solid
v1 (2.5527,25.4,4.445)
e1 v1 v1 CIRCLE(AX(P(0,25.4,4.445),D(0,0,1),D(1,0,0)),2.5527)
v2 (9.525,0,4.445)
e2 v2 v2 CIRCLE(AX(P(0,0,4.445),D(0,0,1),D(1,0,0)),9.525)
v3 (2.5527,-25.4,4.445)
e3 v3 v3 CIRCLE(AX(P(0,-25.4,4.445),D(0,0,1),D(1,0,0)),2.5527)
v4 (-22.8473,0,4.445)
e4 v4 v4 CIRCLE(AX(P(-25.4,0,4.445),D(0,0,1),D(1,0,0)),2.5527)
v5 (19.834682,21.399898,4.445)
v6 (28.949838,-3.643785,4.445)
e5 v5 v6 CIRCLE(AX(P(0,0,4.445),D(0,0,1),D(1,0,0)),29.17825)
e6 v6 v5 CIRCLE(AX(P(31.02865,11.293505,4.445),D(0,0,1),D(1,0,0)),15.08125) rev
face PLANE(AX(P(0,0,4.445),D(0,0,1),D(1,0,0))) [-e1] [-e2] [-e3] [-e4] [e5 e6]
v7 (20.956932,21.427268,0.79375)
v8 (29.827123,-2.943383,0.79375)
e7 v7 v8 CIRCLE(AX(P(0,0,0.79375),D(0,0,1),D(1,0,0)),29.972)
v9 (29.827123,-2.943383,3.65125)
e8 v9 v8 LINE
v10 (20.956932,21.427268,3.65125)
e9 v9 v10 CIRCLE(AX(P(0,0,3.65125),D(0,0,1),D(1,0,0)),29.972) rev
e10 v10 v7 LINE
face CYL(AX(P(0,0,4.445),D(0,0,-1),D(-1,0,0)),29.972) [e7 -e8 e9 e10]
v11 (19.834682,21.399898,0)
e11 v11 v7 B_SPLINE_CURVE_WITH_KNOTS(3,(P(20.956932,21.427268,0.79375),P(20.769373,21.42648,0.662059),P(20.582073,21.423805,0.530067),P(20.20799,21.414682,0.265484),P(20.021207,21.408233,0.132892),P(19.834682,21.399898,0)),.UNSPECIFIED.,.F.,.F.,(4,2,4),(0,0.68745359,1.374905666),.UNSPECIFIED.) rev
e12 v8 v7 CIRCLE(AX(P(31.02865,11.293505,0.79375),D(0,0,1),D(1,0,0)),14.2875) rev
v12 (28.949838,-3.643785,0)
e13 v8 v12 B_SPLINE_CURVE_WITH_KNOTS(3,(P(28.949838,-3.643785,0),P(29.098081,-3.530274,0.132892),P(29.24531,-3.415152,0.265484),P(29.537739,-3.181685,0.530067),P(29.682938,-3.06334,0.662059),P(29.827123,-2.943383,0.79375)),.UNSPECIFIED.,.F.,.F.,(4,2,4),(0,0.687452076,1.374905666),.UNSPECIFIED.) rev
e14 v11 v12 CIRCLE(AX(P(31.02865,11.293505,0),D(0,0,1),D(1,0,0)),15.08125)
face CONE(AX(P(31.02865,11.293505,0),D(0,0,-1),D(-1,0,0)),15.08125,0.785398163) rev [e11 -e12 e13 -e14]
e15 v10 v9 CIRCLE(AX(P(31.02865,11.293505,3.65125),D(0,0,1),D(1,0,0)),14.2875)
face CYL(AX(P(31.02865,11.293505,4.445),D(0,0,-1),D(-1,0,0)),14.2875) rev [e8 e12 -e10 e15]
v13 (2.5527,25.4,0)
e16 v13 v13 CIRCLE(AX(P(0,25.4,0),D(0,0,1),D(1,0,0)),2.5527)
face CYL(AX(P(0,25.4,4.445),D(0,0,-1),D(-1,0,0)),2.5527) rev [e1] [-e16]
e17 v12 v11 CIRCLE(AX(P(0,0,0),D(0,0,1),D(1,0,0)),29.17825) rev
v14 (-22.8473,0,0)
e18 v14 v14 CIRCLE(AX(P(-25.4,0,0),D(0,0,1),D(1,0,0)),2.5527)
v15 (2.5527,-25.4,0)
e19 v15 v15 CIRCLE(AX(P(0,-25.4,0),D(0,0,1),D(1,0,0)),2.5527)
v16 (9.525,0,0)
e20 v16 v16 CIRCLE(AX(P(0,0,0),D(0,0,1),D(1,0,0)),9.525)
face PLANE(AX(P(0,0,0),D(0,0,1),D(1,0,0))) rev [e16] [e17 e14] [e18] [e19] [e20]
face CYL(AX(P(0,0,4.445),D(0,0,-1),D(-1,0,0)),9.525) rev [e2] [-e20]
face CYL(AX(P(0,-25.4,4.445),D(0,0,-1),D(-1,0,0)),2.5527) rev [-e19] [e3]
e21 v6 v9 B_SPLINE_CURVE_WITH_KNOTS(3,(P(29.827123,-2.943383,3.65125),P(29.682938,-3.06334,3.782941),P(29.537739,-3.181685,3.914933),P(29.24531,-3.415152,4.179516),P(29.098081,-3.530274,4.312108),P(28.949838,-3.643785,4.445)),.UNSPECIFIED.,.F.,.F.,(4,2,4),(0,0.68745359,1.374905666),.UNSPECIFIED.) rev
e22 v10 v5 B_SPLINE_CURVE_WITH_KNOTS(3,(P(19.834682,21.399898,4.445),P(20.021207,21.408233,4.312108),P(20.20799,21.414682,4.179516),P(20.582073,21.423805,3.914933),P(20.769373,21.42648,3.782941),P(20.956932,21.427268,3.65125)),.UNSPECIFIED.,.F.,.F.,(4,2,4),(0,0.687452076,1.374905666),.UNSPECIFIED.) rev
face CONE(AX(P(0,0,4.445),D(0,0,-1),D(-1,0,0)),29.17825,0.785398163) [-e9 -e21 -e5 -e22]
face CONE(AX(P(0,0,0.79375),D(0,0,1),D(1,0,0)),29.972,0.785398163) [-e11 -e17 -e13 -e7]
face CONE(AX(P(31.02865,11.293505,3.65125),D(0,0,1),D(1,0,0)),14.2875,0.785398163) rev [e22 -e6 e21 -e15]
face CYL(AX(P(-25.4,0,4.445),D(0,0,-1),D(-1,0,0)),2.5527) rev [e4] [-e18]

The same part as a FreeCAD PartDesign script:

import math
import FreeCAD as App
import Part
import Sketcher
Q = App.Units.Quantity


def edges_at(feature, points):
    """Names of the edges that pass closest to the given points."""
    edges = feature.Shape.Edges
    near = lambda p: min(range(len(edges)), key=lambda i: edges[i].distToShape(Part.Vertex(*p))[0])
    return sorted({f"Edge{near(p) + 1}" for p in points})

doc = App.newDocument("Part")
params = doc.addObject("Spreadsheet::Sheet", "Params")
for row, (alias, value) in enumerate([
    ("sketch1_diameter", "0.75 in"),
    ("sketch1_radius", "1.18 in"),
    ("sketch1_diameter2", "0.201 in"),
    ("sketch1_radius2", "0.5625 in"),
    ("pad1_length", "0.175 in"),
    ("chamfer_size", "0.03125 in"),
    ("chamfer2_size", "0.03125 in"),
], start=1):
    params.set(f"A{row}", alias)
    params.set(f"B{row}", "=" + value)
    params.setAlias(f"B{row}", alias)

body = doc.addObject("PartDesign::Body", "Body")

sketch1 = doc.addObject("Sketcher::SketchObject", "Sketch")
body.addObject(sketch1)
sketch1.AttachmentSupport = (doc.XY_Plane, [""])
sketch1.MapMode = "FlatFace"
sketch1.addGeometry([
    Part.ArcOfCircle(Part.Circle(App.Vector(31, 11.3, 0), App.Vector(0, 0, 1), 14.3), math.radians(135), math.radians(265)),
    Part.ArcOfCircle(Part.Circle(App.Vector(0, 0, 0), App.Vector(0, 0, 1), 30), math.radians(46), math.radians(354)),
    Part.Circle(App.Vector(0, -25.4, 0), App.Vector(0, 0, 1), 2.6),
    Part.Circle(App.Vector(-25.4, 0, 0), App.Vector(0, 0, 1), 2.6),
    Part.Circle(App.Vector(0, 0, 0), App.Vector(0, 0, 1), 9.5),
    Part.Circle(App.Vector(0, 25.4, 0), App.Vector(0, 0, 1), 2.6),
], False)
sketch1.addConstraint([
    Sketcher.Constraint("Coincident", 0, 1, 1, 1),
    Sketcher.Constraint("Coincident", 1, 2, 0, 2),
    Sketcher.Constraint("Coincident", 1, 3, -1, 1),
    Sketcher.Constraint("Coincident", 4, 3, -1, 1),
    Sketcher.Constraint("Equal", 2, 3),
    Sketcher.Constraint("Equal", 3, 5),
    Sketcher.Constraint("Symmetric", 2, 3, 5, 3, -1, 1),
    Sketcher.Constraint("PointOnObject", 2, 3, -2),
    Sketcher.Constraint("PointOnObject", 3, 3, -1),
    Sketcher.Constraint("Diameter", 4, Q("0.75 in")),
    Sketcher.Constraint("Radius", 1, Q("1.18 in")),
    Sketcher.Constraint("Diameter", 2, Q("0.201 in")),
    Sketcher.Constraint("DistanceY", 2, 3, -1, 1, Q("1 in")),
    Sketcher.Constraint("DistanceX", 3, 3, -1, 1, Q("1 in")),
    Sketcher.Constraint("Radius", 0, Q("0.5625 in")),
    Sketcher.Constraint("DistanceX", -1, 1, 0, 3, 31.02865),
    Sketcher.Constraint("DistanceX", -1, 1, 0, 1, 20.956932),
])
sketch1.setExpression("Constraints[9]", "Params.sketch1_diameter")
sketch1.setExpression("Constraints[10]", "Params.sketch1_radius")
sketch1.setExpression("Constraints[11]", "Params.sketch1_diameter2")
sketch1.setExpression("Constraints[14]", "Params.sketch1_radius2")
pad1 = doc.addObject("PartDesign::Pad", "Pad")
body.addObject(pad1)
pad1.Profile = sketch1
pad1.setExpression("Length", "Params.pad1_length")
doc.recompute()

chamfer = doc.addObject("PartDesign::Chamfer", "Chamfer")
body.addObject(chamfer)
chamfer.Base = (pad1, edges_at(pad1, [(17.603, 6.407, 4.445), (-28.164, -10.251, 4.445)]))
chamfer.setExpression("Size", "Params.chamfer_size")
doc.recompute()

chamfer2 = doc.addObject("PartDesign::Chamfer", "Chamfer001")
body.addObject(chamfer2)
chamfer2.Base = (chamfer, edges_at(chamfer, [(-28.164, -10.251, 0), (17.603, 6.407, 0)]))
chamfer2.setExpression("Size", "Params.chamfer2_size")

doc.recompute()
